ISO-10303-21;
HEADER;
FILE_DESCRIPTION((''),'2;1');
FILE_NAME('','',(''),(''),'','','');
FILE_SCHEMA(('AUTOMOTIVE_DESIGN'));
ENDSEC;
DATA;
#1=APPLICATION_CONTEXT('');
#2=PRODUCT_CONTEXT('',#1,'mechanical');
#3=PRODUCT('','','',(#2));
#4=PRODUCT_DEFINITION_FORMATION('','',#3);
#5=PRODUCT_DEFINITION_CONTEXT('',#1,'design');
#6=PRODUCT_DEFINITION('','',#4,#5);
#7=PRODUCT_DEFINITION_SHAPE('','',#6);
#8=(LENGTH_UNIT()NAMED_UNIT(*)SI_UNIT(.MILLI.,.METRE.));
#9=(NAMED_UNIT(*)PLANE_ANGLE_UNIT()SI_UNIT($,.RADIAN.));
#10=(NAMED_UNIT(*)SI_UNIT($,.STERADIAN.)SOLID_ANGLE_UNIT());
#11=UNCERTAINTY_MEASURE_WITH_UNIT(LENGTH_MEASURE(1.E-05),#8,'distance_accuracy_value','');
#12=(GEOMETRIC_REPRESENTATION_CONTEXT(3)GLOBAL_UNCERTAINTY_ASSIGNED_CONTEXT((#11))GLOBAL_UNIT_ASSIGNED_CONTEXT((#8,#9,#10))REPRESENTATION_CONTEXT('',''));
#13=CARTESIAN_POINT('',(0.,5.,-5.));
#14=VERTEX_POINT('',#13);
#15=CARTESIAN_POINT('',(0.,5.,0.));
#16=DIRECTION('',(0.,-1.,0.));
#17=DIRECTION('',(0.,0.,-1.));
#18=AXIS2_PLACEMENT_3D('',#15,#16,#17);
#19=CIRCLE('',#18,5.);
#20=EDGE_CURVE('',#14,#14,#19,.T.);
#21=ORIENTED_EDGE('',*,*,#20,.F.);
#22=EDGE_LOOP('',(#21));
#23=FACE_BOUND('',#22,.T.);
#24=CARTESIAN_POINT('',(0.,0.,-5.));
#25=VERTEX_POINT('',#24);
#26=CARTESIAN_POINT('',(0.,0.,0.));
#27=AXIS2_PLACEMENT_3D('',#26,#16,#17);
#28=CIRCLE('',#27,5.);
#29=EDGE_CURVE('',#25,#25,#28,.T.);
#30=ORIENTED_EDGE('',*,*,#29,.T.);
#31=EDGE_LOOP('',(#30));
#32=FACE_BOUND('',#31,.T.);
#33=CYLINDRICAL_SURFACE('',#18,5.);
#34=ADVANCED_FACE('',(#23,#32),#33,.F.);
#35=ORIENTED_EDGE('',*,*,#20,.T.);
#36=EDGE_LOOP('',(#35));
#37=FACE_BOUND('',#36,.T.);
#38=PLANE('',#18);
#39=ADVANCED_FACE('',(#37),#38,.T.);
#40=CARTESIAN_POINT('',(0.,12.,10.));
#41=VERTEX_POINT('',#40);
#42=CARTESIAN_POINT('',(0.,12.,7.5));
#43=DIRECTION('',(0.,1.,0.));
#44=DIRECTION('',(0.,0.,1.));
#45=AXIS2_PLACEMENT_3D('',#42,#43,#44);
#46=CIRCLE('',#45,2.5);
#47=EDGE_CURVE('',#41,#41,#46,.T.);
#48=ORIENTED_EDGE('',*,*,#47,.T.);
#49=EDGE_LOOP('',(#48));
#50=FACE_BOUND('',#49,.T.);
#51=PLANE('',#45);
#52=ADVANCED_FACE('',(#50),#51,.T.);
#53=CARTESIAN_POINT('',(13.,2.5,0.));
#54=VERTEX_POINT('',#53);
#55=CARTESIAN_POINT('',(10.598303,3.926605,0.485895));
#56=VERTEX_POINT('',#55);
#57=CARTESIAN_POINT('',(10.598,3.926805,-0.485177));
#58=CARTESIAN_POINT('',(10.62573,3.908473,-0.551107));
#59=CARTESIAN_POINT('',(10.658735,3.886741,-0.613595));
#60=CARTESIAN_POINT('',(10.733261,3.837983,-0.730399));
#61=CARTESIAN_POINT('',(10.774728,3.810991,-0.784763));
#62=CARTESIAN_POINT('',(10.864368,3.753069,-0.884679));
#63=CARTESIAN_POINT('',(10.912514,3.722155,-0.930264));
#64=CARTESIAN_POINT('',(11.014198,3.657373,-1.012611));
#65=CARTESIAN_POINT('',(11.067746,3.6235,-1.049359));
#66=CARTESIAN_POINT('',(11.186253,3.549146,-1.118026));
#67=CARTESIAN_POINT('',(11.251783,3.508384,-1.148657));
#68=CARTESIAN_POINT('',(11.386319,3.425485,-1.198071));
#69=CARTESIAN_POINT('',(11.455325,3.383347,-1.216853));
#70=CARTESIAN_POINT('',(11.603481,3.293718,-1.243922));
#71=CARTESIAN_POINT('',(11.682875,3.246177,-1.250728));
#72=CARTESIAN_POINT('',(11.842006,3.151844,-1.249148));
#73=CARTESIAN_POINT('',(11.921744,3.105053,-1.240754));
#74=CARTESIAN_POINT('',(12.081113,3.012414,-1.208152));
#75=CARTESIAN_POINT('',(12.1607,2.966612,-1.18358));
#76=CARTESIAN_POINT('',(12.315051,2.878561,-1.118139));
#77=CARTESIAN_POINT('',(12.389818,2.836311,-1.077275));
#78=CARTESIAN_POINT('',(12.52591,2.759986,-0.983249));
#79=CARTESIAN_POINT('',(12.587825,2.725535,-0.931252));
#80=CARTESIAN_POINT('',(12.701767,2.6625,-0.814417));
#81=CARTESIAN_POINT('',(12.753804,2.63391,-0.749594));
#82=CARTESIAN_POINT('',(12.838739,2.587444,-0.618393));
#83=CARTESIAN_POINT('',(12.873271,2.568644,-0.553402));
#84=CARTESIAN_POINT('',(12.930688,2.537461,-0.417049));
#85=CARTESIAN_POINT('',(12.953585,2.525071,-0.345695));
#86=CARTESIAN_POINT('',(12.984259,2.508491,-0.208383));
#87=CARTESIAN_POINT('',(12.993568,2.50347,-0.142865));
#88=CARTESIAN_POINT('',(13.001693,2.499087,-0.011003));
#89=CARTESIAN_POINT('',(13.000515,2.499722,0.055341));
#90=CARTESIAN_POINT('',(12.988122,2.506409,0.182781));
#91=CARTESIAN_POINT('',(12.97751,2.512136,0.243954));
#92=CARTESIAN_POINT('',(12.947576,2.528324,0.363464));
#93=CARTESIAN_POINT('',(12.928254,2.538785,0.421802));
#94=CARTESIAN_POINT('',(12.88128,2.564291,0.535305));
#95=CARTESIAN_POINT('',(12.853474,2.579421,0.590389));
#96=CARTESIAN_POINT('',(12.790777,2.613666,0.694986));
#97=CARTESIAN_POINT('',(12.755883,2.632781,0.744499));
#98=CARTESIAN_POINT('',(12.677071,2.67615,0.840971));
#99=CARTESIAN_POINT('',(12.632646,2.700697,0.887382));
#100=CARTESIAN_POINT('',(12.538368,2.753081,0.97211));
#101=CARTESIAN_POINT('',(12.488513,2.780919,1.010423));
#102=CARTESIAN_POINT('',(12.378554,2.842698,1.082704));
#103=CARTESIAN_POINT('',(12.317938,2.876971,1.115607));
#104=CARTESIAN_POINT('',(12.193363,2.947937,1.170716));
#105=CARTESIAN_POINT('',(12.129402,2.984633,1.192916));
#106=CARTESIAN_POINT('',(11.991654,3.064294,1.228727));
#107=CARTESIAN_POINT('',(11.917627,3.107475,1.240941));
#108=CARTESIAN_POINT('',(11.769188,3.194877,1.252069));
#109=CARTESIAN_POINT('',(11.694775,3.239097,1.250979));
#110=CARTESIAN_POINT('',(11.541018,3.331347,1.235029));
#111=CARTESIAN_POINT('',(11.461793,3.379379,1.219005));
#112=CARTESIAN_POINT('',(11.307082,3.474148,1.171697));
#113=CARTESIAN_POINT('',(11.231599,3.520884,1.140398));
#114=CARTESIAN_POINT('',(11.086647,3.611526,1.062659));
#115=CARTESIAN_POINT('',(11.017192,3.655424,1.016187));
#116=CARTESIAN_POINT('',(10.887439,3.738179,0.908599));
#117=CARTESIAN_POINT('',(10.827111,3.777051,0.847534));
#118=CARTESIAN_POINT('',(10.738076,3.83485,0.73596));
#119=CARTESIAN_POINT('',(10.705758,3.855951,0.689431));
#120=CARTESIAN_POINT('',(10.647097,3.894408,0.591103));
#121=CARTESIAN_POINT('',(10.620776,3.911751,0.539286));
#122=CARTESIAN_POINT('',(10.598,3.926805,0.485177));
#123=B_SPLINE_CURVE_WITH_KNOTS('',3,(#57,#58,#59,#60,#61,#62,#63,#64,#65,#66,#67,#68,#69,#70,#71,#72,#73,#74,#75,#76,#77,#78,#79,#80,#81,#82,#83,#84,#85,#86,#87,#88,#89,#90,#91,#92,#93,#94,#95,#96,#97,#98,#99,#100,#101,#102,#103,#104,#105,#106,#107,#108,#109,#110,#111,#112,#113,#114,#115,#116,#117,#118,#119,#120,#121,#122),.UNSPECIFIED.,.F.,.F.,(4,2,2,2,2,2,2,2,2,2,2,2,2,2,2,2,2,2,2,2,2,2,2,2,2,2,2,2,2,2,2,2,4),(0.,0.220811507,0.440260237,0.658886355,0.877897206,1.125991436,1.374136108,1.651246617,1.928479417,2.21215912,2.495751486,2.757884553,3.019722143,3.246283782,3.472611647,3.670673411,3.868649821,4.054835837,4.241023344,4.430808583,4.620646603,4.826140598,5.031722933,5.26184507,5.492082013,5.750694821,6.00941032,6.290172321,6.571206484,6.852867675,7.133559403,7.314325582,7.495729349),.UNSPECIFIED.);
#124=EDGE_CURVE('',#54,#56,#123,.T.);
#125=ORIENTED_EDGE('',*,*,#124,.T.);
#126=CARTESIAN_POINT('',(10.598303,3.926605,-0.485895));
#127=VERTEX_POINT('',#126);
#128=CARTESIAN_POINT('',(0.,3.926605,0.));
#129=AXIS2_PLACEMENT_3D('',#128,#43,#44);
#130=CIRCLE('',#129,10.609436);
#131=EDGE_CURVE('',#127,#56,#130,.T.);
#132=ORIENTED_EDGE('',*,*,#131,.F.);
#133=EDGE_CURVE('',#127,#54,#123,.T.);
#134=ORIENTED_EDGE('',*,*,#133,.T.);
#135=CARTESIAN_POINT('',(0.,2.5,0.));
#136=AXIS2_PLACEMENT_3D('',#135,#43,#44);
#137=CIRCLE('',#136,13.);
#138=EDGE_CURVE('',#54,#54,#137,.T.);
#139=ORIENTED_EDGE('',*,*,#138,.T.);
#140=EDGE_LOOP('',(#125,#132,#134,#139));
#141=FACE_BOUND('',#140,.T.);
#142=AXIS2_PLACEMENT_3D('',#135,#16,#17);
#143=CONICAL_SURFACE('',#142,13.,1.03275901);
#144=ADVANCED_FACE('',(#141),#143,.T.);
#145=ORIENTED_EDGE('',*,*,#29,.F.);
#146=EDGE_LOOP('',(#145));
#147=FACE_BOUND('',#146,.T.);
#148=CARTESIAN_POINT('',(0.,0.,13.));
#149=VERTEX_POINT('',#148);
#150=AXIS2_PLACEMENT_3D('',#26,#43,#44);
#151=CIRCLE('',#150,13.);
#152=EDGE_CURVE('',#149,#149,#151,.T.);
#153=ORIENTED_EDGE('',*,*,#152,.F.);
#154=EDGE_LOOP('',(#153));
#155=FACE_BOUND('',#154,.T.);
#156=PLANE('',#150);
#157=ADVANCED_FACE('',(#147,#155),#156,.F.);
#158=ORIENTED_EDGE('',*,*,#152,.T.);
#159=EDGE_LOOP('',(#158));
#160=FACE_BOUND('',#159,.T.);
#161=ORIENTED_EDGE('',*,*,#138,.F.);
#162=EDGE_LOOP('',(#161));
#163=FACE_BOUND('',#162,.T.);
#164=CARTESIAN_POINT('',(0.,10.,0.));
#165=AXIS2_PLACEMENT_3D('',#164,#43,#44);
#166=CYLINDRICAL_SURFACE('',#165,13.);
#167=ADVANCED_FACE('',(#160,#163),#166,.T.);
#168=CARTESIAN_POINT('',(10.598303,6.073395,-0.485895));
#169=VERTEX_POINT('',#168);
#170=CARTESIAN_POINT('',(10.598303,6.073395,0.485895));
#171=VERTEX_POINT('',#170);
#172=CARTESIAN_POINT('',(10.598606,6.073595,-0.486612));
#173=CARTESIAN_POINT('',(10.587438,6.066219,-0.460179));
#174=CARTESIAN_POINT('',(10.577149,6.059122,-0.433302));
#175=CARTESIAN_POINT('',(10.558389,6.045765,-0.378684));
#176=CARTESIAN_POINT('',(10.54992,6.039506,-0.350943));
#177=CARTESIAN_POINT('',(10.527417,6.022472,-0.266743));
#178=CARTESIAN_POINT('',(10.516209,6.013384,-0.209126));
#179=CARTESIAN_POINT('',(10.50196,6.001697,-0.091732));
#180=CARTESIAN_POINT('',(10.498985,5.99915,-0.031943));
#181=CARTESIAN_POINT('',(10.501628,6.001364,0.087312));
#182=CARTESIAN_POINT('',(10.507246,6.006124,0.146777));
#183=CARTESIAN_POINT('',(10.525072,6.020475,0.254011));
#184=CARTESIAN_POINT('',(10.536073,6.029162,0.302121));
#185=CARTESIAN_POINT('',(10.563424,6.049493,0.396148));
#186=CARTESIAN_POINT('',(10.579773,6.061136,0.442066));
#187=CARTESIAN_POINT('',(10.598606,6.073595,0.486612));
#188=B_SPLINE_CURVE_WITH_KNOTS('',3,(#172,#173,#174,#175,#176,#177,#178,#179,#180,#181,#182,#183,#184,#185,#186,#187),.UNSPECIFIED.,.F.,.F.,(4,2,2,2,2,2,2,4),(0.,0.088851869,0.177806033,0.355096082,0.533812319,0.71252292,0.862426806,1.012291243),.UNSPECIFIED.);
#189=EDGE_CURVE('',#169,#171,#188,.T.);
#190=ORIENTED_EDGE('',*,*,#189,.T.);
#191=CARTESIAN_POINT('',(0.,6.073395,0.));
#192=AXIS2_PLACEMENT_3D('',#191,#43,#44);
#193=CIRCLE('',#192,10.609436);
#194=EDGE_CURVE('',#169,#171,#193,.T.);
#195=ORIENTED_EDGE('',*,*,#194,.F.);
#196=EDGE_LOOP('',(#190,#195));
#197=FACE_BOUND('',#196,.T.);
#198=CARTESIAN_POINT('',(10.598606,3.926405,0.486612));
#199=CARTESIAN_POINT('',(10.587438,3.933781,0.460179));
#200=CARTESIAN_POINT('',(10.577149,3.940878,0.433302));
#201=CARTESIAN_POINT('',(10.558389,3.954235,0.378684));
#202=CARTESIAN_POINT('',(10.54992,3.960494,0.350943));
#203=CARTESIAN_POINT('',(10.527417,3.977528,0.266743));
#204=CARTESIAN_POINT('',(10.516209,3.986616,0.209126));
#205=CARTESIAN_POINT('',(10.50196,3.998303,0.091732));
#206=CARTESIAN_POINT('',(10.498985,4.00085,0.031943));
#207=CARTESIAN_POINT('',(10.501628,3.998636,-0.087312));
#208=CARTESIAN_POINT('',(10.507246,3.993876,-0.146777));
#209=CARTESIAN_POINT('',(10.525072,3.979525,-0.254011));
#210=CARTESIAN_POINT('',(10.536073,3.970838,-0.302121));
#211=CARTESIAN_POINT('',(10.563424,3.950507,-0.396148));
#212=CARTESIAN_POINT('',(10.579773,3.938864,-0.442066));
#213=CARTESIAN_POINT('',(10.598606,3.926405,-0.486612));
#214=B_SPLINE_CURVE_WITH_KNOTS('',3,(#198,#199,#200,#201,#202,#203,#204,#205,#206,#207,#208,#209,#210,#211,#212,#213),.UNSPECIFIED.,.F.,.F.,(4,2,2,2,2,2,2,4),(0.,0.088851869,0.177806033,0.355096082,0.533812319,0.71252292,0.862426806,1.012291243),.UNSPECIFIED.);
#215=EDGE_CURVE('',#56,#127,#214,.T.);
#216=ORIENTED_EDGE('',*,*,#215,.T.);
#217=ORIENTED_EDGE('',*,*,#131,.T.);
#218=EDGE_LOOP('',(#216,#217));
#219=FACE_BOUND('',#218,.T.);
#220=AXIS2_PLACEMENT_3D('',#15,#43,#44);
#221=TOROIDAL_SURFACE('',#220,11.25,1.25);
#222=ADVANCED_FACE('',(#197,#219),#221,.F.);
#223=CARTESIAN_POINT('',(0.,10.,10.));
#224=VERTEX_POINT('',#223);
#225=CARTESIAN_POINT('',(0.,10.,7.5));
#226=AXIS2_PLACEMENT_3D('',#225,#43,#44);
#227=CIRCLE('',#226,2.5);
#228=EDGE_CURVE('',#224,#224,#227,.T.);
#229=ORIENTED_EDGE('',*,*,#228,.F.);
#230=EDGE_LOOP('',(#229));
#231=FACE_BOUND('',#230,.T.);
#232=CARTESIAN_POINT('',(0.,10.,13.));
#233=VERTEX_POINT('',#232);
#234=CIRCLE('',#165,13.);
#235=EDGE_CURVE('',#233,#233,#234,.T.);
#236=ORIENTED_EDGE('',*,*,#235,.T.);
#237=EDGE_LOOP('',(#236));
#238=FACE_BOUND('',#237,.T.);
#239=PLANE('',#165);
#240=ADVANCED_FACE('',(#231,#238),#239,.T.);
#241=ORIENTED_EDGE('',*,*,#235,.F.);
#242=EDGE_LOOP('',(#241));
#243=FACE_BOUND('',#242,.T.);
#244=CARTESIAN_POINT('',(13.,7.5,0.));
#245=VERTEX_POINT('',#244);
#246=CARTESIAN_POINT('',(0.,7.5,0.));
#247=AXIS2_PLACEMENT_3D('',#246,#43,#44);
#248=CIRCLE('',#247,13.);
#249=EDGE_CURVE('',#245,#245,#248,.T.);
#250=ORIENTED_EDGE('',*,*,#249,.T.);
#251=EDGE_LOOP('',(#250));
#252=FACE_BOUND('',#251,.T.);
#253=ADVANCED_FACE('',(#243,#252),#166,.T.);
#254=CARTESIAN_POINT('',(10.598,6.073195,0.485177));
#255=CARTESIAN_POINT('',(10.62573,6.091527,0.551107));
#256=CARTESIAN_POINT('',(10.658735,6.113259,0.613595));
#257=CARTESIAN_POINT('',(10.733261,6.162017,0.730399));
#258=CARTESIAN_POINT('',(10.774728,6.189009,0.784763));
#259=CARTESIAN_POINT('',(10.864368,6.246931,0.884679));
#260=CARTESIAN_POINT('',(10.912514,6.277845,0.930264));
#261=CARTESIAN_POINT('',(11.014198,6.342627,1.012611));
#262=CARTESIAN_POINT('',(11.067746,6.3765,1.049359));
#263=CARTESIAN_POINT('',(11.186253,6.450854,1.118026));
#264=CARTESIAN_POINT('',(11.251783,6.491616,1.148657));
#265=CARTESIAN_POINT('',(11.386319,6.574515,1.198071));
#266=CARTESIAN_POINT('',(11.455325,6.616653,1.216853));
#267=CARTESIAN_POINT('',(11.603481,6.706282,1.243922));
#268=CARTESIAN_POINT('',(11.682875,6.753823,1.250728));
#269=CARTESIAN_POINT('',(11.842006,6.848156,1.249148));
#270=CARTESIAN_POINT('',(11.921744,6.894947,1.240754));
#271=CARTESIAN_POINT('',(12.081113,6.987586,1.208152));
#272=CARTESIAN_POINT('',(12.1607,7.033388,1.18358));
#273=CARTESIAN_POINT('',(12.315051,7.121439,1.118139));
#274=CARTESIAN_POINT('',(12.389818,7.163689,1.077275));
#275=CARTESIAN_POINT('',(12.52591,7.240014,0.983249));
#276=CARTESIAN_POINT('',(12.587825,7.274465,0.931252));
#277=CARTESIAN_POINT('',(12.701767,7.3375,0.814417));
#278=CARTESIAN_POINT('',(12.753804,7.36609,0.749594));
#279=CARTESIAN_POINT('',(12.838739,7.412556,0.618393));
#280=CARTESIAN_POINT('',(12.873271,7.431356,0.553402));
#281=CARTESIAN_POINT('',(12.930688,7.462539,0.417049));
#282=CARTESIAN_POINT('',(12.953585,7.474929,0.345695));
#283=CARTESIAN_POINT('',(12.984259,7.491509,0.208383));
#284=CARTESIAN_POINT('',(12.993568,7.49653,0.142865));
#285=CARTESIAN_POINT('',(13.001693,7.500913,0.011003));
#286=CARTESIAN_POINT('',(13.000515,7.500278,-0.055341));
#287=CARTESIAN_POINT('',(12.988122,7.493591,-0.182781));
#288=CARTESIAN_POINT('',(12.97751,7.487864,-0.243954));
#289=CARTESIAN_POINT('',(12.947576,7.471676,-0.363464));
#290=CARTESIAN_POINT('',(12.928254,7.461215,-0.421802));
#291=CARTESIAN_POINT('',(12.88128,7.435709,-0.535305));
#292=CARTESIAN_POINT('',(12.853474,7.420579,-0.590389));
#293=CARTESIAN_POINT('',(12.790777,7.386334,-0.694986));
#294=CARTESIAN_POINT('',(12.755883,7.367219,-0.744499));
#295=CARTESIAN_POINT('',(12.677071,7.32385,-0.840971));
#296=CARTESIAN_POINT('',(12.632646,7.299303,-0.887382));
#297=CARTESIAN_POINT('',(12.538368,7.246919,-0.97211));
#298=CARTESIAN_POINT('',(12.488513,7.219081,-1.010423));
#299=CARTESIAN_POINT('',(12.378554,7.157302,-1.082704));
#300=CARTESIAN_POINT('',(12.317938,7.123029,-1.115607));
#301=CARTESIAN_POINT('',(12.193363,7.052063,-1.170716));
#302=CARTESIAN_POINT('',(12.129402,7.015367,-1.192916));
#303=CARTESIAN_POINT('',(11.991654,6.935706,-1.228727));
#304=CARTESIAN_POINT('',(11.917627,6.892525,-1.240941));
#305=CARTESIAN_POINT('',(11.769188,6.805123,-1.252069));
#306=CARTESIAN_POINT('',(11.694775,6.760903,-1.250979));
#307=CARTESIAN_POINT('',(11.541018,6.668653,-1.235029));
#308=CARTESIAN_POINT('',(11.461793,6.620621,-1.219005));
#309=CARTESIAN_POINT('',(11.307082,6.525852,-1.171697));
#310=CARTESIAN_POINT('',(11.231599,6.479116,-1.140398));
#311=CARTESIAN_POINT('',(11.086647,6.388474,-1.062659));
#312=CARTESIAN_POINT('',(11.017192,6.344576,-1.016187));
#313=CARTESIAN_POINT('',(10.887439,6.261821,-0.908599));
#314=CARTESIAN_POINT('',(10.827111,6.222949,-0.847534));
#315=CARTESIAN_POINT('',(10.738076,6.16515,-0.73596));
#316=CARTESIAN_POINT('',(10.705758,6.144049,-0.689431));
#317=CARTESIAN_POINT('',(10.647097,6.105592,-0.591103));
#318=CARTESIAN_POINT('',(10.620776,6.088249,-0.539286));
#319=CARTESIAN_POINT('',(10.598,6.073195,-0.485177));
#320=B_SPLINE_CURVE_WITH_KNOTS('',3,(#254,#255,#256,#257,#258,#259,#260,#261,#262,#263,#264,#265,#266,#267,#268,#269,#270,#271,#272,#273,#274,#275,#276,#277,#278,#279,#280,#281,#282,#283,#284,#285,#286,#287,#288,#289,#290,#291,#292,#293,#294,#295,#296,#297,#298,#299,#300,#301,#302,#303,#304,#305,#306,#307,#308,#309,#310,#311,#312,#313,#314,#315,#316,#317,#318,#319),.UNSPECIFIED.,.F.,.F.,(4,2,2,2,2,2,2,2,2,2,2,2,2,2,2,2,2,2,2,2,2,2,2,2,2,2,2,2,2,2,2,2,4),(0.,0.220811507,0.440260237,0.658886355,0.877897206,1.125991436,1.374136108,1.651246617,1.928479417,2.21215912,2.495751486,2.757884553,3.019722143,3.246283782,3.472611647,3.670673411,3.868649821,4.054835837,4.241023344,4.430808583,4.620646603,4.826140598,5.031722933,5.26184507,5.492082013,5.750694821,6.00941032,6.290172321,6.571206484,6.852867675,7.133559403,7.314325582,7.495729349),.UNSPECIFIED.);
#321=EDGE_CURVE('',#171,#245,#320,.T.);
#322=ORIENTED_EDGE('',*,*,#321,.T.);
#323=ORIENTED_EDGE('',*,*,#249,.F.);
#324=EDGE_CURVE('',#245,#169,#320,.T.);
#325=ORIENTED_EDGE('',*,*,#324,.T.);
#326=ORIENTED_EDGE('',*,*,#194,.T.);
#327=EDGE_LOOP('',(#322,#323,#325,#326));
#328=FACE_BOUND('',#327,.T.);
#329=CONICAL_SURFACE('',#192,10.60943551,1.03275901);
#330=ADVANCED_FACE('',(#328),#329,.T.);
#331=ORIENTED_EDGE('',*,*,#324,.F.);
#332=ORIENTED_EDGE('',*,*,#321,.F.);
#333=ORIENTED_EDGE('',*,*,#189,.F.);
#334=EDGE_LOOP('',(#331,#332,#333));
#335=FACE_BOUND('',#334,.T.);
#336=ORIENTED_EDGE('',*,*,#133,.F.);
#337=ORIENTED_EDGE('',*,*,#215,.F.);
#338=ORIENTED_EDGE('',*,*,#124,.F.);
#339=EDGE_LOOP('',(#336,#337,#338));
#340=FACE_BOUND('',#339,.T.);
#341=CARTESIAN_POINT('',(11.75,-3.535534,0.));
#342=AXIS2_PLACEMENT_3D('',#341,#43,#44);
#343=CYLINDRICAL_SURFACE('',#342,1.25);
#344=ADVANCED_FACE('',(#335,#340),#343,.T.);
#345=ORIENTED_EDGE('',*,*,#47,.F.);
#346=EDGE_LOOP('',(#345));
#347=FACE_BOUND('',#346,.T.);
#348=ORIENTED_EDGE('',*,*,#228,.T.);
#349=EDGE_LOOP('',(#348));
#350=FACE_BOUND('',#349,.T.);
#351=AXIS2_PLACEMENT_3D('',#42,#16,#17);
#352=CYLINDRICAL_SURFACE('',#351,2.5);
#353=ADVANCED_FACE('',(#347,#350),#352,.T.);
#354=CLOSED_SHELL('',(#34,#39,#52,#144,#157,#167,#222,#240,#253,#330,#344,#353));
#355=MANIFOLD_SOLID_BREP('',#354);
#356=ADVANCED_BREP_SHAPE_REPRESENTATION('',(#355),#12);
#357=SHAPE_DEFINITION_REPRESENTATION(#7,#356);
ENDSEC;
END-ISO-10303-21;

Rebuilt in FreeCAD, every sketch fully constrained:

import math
import FreeCAD as App
import Part
import Sketcher
Q = App.Units.Quantity

doc = App.newDocument("Part")
body = doc.addObject("PartDesign::Body", "Body")

# Sketch on XZ plane
sketch1 = doc.addObject("Sketcher::SketchObject", "Sketch")
body.addObject(sketch1)
sketch1.AttachmentSupport = (doc.XZ_Plane, [""])
sketch1.MapMode = "FlatFace"
sketch1.addGeometry(Part.Circle(App.Vector(0, 0, 0), App.Vector(0, 0, 1), 10), False)
sketch1.addConstraint(Sketcher.Constraint("Coincident", 0, 3, -1, 1))
sketch1.addConstraint(Sketcher.Constraint("Diameter", 0, Q("20 mm")))
pad1 = doc.addObject("PartDesign::Pad", "Pad")
body.addObject(pad1)
pad1.Profile = sketch1
pad1.Length = 10
pad1.Reversed = True

# Sketch on YZ plane
sketch2 = doc.addObject("Sketcher::SketchObject", "Sketch001")
body.addObject(sketch2)
sketch2.AttachmentSupport = (doc.YZ_Plane, [""])
sketch2.MapMode = "FlatFace"
sketch2.addGeometry(Part.LineSegment(App.Vector(7.5, -13, 0), App.Vector(10, -13, 0)), False)
sketch2.addGeometry(Part.LineSegment(App.Vector(10, -13, 0), App.Vector(10, -9.2, 0)), False)
sketch2.addGeometry(Part.LineSegment(App.Vector(10, -9.2, 0), App.Vector(0, -9.2, 0)), False)
sketch2.addGeometry(Part.LineSegment(App.Vector(0, -9.2, 0), App.Vector(0, -13, 0)), False)
sketch2.addGeometry(Part.LineSegment(App.Vector(0, -13, 0), App.Vector(2.5, -13, 0)), False)
sketch2.addGeometry(Part.LineSegment(App.Vector(2.5, -13, 0), App.Vector(3.9, -10.6, 0)), False)
sketch2.addGeometry(Part.ArcOfCircle(Part.Circle(App.Vector(5, -11.2, 0), App.Vector(0, 0, 1), 1.2), math.radians(31), math.radians(149)), False)
sketch2.addGeometry(Part.LineSegment(App.Vector(6.1, -10.6, 0), App.Vector(7.5, -13, 0)), False)
sketch2.addConstraint(Sketcher.Constraint("Coincident", 0, 2, 1, 1))
sketch2.addConstraint(Sketcher.Constraint("Coincident", 1, 2, 2, 1))
sketch2.addConstraint(Sketcher.Constraint("Coincident", 2, 2, 3, 1))
sketch2.addConstraint(Sketcher.Constraint("Coincident", 3, 2, 4, 1))
sketch2.addConstraint(Sketcher.Constraint("Coincident", 4, 2, 5, 1))
sketch2.addConstraint(Sketcher.Constraint("Tangent", 5, 2, 6, 2))
sketch2.addConstraint(Sketcher.Constraint("Tangent", 6, 1, 7, 1))
sketch2.addConstraint(Sketcher.Constraint("Coincident", 7, 2, 0, 1))
sketch2.addConstraint(Sketcher.Constraint("Horizontal", 0))
sketch2.addConstraint(Sketcher.Constraint("Vertical", 1))
sketch2.addConstraint(Sketcher.Constraint("Horizontal", 2))
sketch2.addConstraint(Sketcher.Constraint("Vertical", 3))
sketch2.addConstraint(Sketcher.Constraint("Horizontal", 4))
sketch2.addConstraint(Sketcher.Constraint("PointOnObject", 2, 2, -2))
sketch2.addConstraint(Sketcher.Constraint("Horizontal", 0, 2, 3, 2))
sketch2.addConstraint(Sketcher.Constraint("Horizontal", 5, 2, 6, 1))
sketch2.addConstraint(Sketcher.Constraint("Equal", 0, 4))
sketch2.addConstraint(Sketcher.Constraint("DistanceX", 2, 2, 2, 1, Q("10 mm")))
sketch2.addConstraint(Sketcher.Constraint("Radius", 6, Q("1.25 mm")))
sketch2.addConstraint(Sketcher.Constraint("DistanceX", 0, 1, 0, 2, Q("2.5 mm")))
sketch2.addConstraint(Sketcher.Constraint("DistanceY", 0, 2, -1, 1, Q("13 mm")))
sketch2.addConstraint(Sketcher.Constraint("DistanceY", 6, 3, 1, 2, Q("2 mm")))
sketch2.addConstraint(Sketcher.Constraint("DistanceY", 1, 1, 1, 2, Q("3.75 mm")))
revolution = doc.addObject("PartDesign::Revolution", "Revolution")
body.addObject(revolution)
revolution.Profile = sketch2
revolution.ReferenceAxis = (sketch2, ["H_Axis"])
revolution.Angle = 360

# Sketch on XZ plane
sketch3 = doc.addObject("Sketcher::SketchObject", "Sketch002")
body.addObject(sketch3)
sketch3.AttachmentSupport = (doc.XZ_Plane, [""])
sketch3.MapMode = "FlatFace"
sketch3.addGeometry(Part.Circle(App.Vector(0, 0, 0), App.Vector(0, 0, 1), 5), False)
sketch3.addConstraint(Sketcher.Constraint("Coincident", 0, 3, -1, 1))
sketch3.addConstraint(Sketcher.Constraint("Diameter", 0, Q("10 mm")))
pocket1 = doc.addObject("PartDesign::Pocket", "Pocket")
body.addObject(pocket1)
pocket1.Profile = sketch3
pocket1.Length = 5

# Sketch on XZ plane
sketch4 = doc.addObject("Sketcher::SketchObject", "Sketch003")
body.addObject(sketch4)
sketch4.AttachmentSupport = (doc.XZ_Plane, [""])
sketch4.MapMode = "FlatFace"
sketch4.AttachmentOffset = App.Placement(App.Vector(0, 0, -10), App.Rotation())
sketch4.addGeometry(Part.Circle(App.Vector(0, 7.5, 0), App.Vector(0, 0, 1), 2.5), False)
sketch4.addConstraint(Sketcher.Constraint("PointOnObject", 0, 3, -2))
sketch4.addConstraint(Sketcher.Constraint("Diameter", 0, Q("5 mm")))
sketch4.addConstraint(Sketcher.Constraint("DistanceY", -1, 1, 0, 3, Q("7.5 mm")))
pad2 = doc.addObject("PartDesign::Pad", "Pad001")
body.addObject(pad2)
pad2.Profile = sketch4
pad2.Length = 2
pad2.Reversed = True

# Sketch on XZ plane
sketch5 = doc.addObject("Sketcher::SketchObject", "Sketch004")
body.addObject(sketch5)
sketch5.AttachmentSupport = (doc.XZ_Plane, [""])
sketch5.MapMode = "FlatFace"
sketch5.AttachmentOffset = App.Placement(App.Vector(0, 0, -10), App.Rotation())
sketch5.addGeometry(Part.Circle(App.Vector(11.8, 0, 0), App.Vector(0, 0, 1), 1.2), False)
sketch5.addConstraint(Sketcher.Constraint("PointOnObject", 0, 3, -1))
sketch5.addConstraint(Sketcher.Constraint("Diameter", 0, Q("2.5 mm")))
sketch5.addConstraint(Sketcher.Constraint("DistanceX", -1, 1, 0, 3, Q("11.75 mm")))
pad3 = doc.addObject("PartDesign::Pad", "Pad002")
body.addObject(pad3)
pad3.Profile = sketch5
pad3.Length = 10

doc.recompute()
